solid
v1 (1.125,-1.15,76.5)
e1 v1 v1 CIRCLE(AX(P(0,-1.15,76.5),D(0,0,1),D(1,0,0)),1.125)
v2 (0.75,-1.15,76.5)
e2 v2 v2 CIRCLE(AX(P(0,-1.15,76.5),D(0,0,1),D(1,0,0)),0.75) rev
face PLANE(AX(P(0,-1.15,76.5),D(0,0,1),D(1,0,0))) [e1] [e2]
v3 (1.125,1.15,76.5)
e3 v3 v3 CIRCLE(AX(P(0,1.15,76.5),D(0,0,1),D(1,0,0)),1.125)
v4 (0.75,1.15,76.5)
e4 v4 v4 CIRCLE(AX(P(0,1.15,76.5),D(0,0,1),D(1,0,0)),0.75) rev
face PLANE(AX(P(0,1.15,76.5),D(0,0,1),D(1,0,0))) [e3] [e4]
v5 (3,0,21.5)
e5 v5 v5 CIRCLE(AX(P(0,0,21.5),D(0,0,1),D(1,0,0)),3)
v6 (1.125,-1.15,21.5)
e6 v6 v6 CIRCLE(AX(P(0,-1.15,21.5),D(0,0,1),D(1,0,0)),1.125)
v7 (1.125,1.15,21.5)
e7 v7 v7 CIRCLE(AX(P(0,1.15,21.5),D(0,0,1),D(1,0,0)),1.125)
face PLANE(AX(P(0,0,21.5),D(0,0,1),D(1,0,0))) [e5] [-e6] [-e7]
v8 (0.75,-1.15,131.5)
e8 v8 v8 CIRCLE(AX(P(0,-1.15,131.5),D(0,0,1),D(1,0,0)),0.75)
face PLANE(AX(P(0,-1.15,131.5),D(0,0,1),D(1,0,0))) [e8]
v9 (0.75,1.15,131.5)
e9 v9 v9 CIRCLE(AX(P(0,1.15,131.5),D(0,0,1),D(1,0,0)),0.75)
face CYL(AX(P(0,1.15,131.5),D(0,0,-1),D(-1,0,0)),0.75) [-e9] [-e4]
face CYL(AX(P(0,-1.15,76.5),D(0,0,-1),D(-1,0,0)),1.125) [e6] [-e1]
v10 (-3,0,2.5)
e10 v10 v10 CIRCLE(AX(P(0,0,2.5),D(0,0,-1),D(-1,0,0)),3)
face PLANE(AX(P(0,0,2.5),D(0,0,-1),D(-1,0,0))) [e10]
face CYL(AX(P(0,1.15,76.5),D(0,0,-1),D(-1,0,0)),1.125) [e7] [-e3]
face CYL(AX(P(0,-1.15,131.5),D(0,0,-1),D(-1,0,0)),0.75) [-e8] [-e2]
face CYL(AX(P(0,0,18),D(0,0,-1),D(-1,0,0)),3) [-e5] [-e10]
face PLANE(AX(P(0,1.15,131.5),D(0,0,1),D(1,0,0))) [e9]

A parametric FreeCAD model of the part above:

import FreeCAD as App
import Part
import Sketcher

doc = App.newDocument("Part")
body = doc.addObject("PartDesign::Body", "Body")

# Sketch on XY plane
sketch1 = body.newObject("Sketcher::SketchObject", "Sketch")
sketch1.AttachmentSupport = (doc.getObject("XY_Plane"), [""])
sketch1.MapMode = "FlatFace"
sketch1.addGeometry(Part.Circle(App.Vector(0, 0, 0), App.Vector(0, 0, 1), 3), False)
sketch1.addConstraint(Sketcher.Constraint("Coincident", 0, 3, -1, 1))
sketch1.addConstraint(Sketcher.Constraint("Diameter", 0, 6.0))
pad1 = body.newObject("PartDesign::Pad", "Pad")
pad1.Profile = sketch1
pad1.Length = 18

# Sketch on XY plane
sketch2 = body.newObject("Sketcher::SketchObject", "Sketch001")
sketch2.AttachmentSupport = (doc.getObject("XY_Plane"), [""])
sketch2.MapMode = "FlatFace"
sketch2.addGeometry(Part.Circle(App.Vector(0, 0, 0), App.Vector(0, 0, 1), 3), False)
sketch2.addConstraint(Sketcher.Constraint("Coincident", 0, 3, -1, 1))
sketch2.addConstraint(Sketcher.Constraint("Diameter", 0, 6.0))
pad2 = body.newObject("PartDesign::Pad", "Pad001")
pad2.Profile = sketch2
pad2.Type = "TwoLengths"
pad2.Length = 21.5
pad2.Length2 = 1.5

# Sketch on XY plane
sketch3 = body.newObject("Sketcher::SketchObject", "Sketch002")
sketch3.AttachmentSupport = (doc.getObject("XY_Plane"), [""])
sketch3.MapMode = "FlatFace"
sketch3.AttachmentOffset = App.Placement(App.Vector(0, 0, -1.5), App.Rotation())
sketch3.addGeometry(Part.Circle(App.Vector(0, 0, 0), App.Vector(0, 0, 1), 3), False)
sketch3.addConstraint(Sketcher.Constraint("Coincident", 0, 3, -1, 1))
sketch3.addConstraint(Sketcher.Constraint("Diameter", 0, 6.0))
pocket1 = body.newObject("PartDesign::Pocket", "Pocket")
pocket1.Profile = sketch3
pocket1.Length = 4
pocket1.Reversed = True

# Sketch on XY plane
sketch4 = body.newObject("Sketcher::SketchObject", "Sketch003")
sketch4.AttachmentSupport = (doc.getObject("XY_Plane"), [""])
sketch4.MapMode = "FlatFace"
sketch4.AttachmentOffset = App.Placement(App.Vector(0, 0, 21.5), App.Rotation())
sketch4.addGeometry(Part.Circle(App.Vector(0, -1.15, 0), App.Vector(0, 0, 1), 1.125), False)
sketch4.addGeometry(Part.Circle(App.Vector(0, 1.15, 0), App.Vector(0, 0, 1), 1.125), False)
sketch4.addConstraint(Sketcher.Constraint("Equal", 0, 1))
sketch4.addConstraint(Sketcher.Constraint("Symmetric", 0, 3, 1, 3, -1, 1))
sketch4.addConstraint(Sketcher.Constraint("PointOnObject", 0, 3, -2))
sketch4.addConstraint(Sketcher.Constraint("Diameter", 0, 2.25))
sketch4.addConstraint(Sketcher.Constraint("DistanceY", 0, 3, 1, 3, 2.3))
pad3 = body.newObject("PartDesign::Pad", "Pad002")
pad3.Profile = sketch4
pad3.Length = 55

# Sketch on XY plane
sketch5 = body.newObject("Sketcher::SketchObject", "Sketch004")
sketch5.AttachmentSupport = (doc.getObject("XY_Plane"), [""])
sketch5.MapMode = "FlatFace"
sketch5.AttachmentOffset = App.Placement(App.Vector(0, 0, 21.5), App.Rotation())
sketch5.addGeometry(Part.Circle(App.Vector(0, -1.15, 0), App.Vector(0, 0, 1), 0.75), False)
sketch5.addGeometry(Part.Circle(App.Vector(0, 1.15, 0), App.Vector(0, 0, 1), 0.75), False)
sketch5.addConstraint(Sketcher.Constraint("Equal", 0, 1))
sketch5.addConstraint(Sketcher.Constraint("Symmetric", 0, 3, 1, 3, -1, 1))
sketch5.addConstraint(Sketcher.Constraint("PointOnObject", 0, 3, -2))
sketch5.addConstraint(Sketcher.Constraint("Diameter", 0, 1.5))
sketch5.addConstraint(Sketcher.Constraint("DistanceY", 0, 3, 1, 3, 2.3))
pad4 = body.newObject("PartDesign::Pad", "Pad003")
pad4.Profile = sketch5
pad4.Length = 110

doc.recompute()
